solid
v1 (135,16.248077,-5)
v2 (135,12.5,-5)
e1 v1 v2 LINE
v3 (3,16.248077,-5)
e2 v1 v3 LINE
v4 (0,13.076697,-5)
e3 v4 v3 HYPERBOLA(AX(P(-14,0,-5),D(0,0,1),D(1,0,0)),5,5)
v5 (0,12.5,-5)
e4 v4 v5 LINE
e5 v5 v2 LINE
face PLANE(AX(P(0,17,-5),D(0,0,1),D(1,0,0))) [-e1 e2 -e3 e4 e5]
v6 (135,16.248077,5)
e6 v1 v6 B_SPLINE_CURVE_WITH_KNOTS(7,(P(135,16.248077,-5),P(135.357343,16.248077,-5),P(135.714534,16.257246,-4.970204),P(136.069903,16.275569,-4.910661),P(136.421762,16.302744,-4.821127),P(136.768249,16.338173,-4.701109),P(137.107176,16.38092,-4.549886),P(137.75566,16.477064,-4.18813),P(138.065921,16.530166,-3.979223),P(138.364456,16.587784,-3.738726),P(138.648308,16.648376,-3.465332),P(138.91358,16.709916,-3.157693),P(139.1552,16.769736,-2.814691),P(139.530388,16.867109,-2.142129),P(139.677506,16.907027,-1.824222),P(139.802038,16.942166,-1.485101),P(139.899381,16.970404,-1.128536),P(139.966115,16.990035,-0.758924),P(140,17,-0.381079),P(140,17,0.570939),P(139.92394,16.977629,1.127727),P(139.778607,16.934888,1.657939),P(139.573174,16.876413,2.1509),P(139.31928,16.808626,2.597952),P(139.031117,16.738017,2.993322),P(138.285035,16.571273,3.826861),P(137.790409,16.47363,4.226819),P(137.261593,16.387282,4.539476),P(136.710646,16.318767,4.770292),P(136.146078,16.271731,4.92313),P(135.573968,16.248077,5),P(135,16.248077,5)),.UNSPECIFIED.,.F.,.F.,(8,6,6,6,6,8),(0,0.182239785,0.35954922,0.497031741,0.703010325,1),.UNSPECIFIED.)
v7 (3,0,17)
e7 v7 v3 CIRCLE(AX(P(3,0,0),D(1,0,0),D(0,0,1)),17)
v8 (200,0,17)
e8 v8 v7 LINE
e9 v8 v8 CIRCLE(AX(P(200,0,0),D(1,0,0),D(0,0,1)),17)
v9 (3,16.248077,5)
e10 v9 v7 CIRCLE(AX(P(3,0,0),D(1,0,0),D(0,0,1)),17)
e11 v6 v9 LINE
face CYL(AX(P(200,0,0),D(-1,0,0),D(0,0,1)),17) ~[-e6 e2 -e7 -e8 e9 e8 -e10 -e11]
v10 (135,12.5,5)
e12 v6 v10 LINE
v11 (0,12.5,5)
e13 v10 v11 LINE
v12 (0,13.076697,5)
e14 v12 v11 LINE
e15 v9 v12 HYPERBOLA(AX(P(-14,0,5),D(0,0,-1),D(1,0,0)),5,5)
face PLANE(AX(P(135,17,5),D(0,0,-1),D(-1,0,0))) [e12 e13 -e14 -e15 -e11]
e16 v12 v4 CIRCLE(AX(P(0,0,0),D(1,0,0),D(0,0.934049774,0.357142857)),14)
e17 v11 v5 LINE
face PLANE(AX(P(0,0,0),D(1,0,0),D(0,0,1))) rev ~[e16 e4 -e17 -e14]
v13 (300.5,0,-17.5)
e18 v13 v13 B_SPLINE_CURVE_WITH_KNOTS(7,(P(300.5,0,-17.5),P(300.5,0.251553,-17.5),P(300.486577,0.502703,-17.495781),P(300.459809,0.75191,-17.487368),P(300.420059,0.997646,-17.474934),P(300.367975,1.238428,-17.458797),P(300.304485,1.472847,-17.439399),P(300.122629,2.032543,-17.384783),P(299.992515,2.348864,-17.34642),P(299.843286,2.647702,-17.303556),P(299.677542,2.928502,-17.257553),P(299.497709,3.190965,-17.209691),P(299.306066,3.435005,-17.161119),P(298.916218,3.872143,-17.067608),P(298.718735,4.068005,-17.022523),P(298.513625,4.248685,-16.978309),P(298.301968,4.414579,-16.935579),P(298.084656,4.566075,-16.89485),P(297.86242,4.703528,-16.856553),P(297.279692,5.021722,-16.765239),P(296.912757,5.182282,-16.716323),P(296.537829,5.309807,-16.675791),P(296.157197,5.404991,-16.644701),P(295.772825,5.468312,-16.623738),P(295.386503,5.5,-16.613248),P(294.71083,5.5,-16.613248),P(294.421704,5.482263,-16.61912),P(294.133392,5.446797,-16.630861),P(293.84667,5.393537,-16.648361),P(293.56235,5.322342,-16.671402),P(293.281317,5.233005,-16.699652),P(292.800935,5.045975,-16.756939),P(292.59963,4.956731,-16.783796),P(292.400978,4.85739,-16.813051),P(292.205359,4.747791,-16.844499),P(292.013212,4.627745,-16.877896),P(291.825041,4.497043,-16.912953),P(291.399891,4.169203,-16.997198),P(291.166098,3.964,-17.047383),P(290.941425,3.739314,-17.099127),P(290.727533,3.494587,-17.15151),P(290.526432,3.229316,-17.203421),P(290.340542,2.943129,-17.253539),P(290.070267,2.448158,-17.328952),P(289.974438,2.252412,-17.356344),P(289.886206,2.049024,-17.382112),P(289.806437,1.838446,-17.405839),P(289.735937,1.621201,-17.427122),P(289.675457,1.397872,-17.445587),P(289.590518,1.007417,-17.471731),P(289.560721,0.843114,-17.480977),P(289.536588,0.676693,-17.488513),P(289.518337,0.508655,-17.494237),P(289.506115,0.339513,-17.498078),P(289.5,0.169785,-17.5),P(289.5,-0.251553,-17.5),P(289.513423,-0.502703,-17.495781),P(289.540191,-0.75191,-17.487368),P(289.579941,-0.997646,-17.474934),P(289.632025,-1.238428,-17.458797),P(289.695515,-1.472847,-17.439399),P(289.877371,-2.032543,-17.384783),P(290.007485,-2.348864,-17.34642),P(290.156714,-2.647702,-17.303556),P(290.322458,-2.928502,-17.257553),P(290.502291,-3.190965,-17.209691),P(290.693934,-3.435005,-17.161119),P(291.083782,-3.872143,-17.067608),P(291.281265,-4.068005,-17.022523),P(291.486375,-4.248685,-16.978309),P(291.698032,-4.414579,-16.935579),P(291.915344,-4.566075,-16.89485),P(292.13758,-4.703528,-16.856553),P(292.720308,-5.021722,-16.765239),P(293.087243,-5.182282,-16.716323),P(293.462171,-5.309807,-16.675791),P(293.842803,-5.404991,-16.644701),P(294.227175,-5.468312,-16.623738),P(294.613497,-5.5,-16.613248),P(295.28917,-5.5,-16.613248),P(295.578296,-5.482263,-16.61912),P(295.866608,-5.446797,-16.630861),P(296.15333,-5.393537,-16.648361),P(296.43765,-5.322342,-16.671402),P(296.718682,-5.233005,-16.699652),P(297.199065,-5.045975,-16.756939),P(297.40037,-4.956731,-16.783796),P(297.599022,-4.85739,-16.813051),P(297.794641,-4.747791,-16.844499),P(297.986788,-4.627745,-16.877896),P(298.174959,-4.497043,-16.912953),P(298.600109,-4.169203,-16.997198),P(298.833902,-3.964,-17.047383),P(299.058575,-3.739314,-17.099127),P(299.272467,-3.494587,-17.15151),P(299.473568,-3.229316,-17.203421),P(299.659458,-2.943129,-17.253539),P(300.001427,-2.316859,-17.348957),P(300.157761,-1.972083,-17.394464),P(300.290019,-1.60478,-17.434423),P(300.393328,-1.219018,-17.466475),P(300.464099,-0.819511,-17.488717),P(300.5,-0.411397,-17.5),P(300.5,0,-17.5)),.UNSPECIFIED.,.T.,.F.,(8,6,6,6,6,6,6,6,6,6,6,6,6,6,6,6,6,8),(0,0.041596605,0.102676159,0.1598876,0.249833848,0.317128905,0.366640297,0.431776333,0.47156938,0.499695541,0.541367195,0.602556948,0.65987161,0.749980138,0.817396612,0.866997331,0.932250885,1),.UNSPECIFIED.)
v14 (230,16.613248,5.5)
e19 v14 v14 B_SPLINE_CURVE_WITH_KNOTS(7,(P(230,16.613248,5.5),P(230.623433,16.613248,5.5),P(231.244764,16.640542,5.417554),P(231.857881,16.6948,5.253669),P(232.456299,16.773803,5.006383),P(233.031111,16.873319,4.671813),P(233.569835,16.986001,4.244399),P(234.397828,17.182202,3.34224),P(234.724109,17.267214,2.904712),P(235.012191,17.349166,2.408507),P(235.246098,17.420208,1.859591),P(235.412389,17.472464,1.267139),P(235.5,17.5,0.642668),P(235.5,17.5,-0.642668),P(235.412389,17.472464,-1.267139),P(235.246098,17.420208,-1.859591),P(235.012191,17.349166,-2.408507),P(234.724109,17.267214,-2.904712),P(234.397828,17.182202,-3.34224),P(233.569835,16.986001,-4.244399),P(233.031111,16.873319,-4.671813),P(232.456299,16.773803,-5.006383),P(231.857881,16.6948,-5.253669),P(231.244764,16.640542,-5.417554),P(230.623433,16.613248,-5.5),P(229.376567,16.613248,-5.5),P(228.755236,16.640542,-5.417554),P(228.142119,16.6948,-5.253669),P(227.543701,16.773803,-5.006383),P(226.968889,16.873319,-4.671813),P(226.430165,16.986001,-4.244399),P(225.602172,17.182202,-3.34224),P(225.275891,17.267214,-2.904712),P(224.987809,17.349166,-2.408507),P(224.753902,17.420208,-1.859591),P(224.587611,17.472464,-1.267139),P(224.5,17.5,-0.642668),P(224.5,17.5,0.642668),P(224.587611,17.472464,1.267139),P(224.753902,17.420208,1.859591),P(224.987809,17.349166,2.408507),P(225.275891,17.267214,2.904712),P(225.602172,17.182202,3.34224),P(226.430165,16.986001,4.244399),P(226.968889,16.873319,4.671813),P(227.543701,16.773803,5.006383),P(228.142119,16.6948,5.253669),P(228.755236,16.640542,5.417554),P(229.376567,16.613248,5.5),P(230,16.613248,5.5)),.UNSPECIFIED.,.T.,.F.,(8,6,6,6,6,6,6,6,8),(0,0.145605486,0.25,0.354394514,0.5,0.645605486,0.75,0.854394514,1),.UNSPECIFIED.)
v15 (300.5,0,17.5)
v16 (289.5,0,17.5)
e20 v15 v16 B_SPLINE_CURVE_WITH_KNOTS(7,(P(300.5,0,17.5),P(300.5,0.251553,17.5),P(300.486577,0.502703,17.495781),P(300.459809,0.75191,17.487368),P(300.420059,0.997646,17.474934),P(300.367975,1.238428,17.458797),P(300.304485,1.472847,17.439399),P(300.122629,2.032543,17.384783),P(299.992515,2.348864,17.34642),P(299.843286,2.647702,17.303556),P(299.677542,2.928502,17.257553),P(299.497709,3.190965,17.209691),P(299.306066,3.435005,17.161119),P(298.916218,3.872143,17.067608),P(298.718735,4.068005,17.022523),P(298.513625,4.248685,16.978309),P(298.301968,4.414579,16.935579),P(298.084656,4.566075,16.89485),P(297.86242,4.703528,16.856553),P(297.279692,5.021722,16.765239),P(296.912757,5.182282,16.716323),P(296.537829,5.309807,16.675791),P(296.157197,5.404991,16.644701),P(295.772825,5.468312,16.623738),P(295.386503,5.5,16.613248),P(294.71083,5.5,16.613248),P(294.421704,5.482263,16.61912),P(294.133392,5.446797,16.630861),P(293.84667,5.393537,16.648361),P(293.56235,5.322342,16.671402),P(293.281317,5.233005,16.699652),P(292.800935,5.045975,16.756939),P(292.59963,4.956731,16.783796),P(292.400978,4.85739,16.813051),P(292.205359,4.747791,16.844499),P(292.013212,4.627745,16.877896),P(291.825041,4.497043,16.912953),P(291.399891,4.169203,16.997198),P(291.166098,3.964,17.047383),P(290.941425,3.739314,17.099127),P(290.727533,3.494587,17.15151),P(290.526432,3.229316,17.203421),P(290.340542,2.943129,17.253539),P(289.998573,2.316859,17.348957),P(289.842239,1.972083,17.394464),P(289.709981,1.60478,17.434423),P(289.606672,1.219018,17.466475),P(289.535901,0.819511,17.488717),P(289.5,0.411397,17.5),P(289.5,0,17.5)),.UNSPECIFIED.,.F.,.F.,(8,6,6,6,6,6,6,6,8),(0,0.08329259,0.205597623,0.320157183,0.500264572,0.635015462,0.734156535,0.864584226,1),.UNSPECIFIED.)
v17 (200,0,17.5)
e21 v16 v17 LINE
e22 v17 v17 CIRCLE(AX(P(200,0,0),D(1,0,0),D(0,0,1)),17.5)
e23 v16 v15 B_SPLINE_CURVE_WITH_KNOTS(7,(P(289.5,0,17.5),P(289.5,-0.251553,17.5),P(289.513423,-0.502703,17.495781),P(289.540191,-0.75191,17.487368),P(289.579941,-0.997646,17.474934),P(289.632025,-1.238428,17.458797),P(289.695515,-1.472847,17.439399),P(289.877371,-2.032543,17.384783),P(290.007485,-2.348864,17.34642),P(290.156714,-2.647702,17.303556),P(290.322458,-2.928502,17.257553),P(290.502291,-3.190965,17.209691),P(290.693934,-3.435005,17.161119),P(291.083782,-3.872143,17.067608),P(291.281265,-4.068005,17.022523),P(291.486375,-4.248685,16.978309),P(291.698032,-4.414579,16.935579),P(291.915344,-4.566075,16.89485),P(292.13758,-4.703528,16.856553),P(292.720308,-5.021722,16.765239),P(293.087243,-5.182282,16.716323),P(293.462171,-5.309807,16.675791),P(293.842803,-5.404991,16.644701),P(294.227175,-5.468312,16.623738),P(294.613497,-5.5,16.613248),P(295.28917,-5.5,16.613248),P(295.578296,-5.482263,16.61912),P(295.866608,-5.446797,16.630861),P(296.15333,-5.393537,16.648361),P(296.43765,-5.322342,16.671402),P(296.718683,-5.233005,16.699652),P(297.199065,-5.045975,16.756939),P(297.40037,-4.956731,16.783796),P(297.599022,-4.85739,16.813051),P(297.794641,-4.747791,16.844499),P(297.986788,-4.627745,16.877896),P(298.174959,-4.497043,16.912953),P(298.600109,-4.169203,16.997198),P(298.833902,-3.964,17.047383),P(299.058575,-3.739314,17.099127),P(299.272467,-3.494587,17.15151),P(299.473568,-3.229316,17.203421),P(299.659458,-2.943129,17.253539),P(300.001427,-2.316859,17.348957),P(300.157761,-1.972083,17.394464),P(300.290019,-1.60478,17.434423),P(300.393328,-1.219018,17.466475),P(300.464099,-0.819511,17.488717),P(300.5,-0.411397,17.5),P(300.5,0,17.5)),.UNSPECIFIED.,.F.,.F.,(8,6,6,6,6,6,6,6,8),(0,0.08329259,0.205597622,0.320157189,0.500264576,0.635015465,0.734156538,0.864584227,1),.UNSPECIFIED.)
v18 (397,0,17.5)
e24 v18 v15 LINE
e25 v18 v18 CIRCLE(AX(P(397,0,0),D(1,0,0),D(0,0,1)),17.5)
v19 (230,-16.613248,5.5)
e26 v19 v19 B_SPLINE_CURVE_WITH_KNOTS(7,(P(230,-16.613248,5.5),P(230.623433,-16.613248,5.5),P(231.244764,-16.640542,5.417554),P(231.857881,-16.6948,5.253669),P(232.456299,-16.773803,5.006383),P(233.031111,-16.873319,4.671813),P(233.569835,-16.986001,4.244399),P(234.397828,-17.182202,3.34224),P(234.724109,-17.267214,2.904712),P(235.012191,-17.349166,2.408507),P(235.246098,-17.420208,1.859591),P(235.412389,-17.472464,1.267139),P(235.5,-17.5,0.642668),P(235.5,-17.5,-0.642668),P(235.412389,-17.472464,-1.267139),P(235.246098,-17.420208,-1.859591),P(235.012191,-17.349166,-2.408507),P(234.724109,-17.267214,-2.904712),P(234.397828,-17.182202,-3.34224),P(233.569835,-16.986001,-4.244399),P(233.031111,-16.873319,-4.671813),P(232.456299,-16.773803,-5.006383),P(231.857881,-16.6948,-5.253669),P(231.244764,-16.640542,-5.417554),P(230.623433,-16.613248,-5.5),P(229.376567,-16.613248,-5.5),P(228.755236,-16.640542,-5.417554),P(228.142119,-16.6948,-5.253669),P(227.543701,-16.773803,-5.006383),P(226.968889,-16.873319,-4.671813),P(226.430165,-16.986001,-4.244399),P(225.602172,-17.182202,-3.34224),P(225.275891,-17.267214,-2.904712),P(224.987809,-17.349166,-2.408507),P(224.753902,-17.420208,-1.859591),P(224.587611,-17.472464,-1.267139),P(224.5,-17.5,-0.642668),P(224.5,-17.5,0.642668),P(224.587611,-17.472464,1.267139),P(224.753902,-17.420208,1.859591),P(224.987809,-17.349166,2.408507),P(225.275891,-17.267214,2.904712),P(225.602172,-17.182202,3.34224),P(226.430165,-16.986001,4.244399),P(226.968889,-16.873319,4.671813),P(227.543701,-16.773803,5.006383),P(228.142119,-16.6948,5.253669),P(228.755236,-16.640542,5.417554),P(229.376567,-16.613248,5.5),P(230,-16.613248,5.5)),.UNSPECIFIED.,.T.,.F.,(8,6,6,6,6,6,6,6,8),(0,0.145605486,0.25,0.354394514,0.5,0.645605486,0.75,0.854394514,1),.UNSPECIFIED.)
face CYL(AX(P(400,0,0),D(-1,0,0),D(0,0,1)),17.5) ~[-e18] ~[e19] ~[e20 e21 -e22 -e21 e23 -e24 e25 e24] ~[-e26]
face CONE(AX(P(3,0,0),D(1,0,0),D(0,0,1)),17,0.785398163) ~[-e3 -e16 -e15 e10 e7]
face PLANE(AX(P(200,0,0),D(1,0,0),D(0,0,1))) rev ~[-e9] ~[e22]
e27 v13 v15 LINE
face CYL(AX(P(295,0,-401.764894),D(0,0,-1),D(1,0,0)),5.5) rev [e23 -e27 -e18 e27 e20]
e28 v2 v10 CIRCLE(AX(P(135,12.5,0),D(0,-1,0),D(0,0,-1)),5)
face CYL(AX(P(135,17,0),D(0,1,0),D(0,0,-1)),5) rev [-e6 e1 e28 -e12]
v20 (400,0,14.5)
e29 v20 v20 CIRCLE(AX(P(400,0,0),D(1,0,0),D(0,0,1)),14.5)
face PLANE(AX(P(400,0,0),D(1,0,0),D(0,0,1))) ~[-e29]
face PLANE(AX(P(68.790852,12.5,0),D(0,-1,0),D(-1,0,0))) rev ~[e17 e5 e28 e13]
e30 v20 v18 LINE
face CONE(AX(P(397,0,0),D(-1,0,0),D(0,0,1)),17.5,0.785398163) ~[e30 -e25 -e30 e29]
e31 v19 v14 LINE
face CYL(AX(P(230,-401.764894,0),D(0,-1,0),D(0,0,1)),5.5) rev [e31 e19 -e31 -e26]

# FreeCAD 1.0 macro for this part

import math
import FreeCAD as App
import Part
import Sketcher


def edges_at(feature, points):
    """Names of the edges that pass closest to the given points."""
    edges = feature.Shape.Edges
    near = lambda p: min(range(len(edges)), key=lambda i: edges[i].distToShape(Part.Vertex(*p))[0])
    return sorted({f"Edge{near(p) + 1}" for p in points})


def add_polygon(sketch, points):
    """Adds a closed chain of lines whose ends are joined by coincident constraints."""
    first, n = sketch.GeometryCount, len(points)
    for a, b in zip(points, points[1:] + points[:1]):
        sketch.addGeometry(Part.LineSegment(App.Vector(*a, 0), App.Vector(*b, 0)), False)
    for i in range(n):
        sketch.addConstraint(Sketcher.Constraint("Coincident", first + i, 2, first + (i + 1) % n, 1))

doc = App.newDocument("Part")
body = doc.addObject("PartDesign::Body", "Body")

# Sketch on XY plane
sketch1 = doc.addObject("Sketcher::SketchObject", "Sketch")
body.addObject(sketch1)
sketch1.AttachmentSupport = (doc.XY_Plane, [""])
sketch1.MapMode = "FlatFace"
add_polygon(sketch1, [(0, 0), (400, 0), (400, 17.5), (200, 17.5), (200, 17), (0, 17)])  # lines 0-5
sketch1.addConstraint([
    Sketcher.Constraint("Horizontal", 0),
    Sketcher.Constraint("Vertical", 1),
    Sketcher.Constraint("Horizontal", 2),
    Sketcher.Constraint("Vertical", 3),
    Sketcher.Constraint("Horizontal", 4),
    Sketcher.Constraint("Vertical", 5),
    Sketcher.Constraint("Coincident", 5, 2, -1, 1),
    Sketcher.Constraint("Equal", 2, 4),
    Sketcher.Constraint("DistanceX", 0, 1, 0, 2, 400.0),
    Sketcher.Constraint("DistanceY", 5, 2, 5, 1, 17.0),
    Sketcher.Constraint("DistanceY", 1, 1, 1, 2, 17.5),
])
revolution = doc.addObject("PartDesign::Revolution", "Revolution")
body.addObject(revolution)
revolution.Profile = sketch1
revolution.ReferenceAxis = (sketch1, ["H_Axis"])
revolution.Angle = 360
doc.recompute()

chamfer = doc.addObject("PartDesign::Chamfer", "Chamfer")
body.addObject(chamfer)
chamfer.Base = (revolution, edges_at(revolution, [(0, 0, -17), (400, 0, -17.5)]))
chamfer.Size = 3

# Sketch on XZ plane
sketch2 = doc.addObject("Sketcher::SketchObject", "Sketch001")
body.addObject(sketch2)
sketch2.AttachmentSupport = (doc.XZ_Plane, [""])
sketch2.MapMode = "FlatFace"
sketch2.AttachmentOffset = App.Placement(App.Vector(0, 0, -17), App.Rotation())
sketch2.addGeometry([
    Part.LineSegment(App.Vector(135, -5, 0), App.Vector(0, -5, 0)),
    Part.LineSegment(App.Vector(0, -5, 0), App.Vector(0, 5, 0)),
    Part.LineSegment(App.Vector(0, 5, 0), App.Vector(135, 5, 0)),
    Part.ArcOfCircle(Part.Circle(App.Vector(135, 0, 0), App.Vector(0, 0, 1), 5), math.radians(-90), math.radians(90)),
], False)
sketch2.addConstraint([
    Sketcher.Constraint("Coincident", 0, 2, 1, 1),
    Sketcher.Constraint("Coincident", 1, 2, 2, 1),
    Sketcher.Constraint("Tangent", 2, 2, 3, 2),
    Sketcher.Constraint("Tangent", 3, 1, 0, 1),
    Sketcher.Constraint("Horizontal", 0),
    Sketcher.Constraint("Vertical", 1),
    Sketcher.Constraint("Horizontal", 2),
    Sketcher.Constraint("Symmetric", 0, 2, 1, 2, -1, 1),
    Sketcher.Constraint("Radius", 3, 5.0),
    Sketcher.Constraint("DistanceX", 0, 2, 0, 1, 135.0),
])
pocket1 = doc.addObject("PartDesign::Pocket", "Pocket")
body.addObject(pocket1)
pocket1.Profile = sketch2
pocket1.Length = 4.5
pocket1.Reversed = True

# Sketch on XZ plane
sketch3 = doc.addObject("Sketcher::SketchObject", "Sketch002")
body.addObject(sketch3)
sketch3.AttachmentSupport = (doc.XZ_Plane, [""])
sketch3.MapMode = "FlatFace"
sketch3.addGeometry(Part.Circle(App.Vector(230, 0, 0), App.Vector(0, 0, 1), 5.5), False)
sketch3.addConstraint([
    Sketcher.Constraint("PointOnObject", 0, 3, -1),
    Sketcher.Constraint("Diameter", 0, 11.0),
    Sketcher.Constraint("DistanceX", -1, 1, 0, 3, 230.0),
])
pocket2 = doc.addObject("PartDesign::Pocket", "Pocket001")
body.addObject(pocket2)
pocket2.Profile = sketch3
pocket2.Type = "ThroughAll"
pocket2.Midplane = True

# Sketch on XY plane
sketch4 = doc.addObject("Sketcher::SketchObject", "Sketch003")
body.addObject(sketch4)
sketch4.AttachmentSupport = (doc.XY_Plane, [""])
sketch4.MapMode = "FlatFace"
sketch4.addGeometry(Part.Circle(App.Vector(295, 0, 0), App.Vector(0, 0, 1), 5.5), False)
sketch4.addConstraint([
    Sketcher.Constraint("PointOnObject", 0, 3, -1),
    Sketcher.Constraint("Diameter", 0, 11.0),
    Sketcher.Constraint("DistanceX", -1, 1, 0, 3, 295.0),
])
pocket3 = doc.addObject("PartDesign::Pocket", "Pocket002")
body.addObject(pocket3)
pocket3.Profile = sketch4
pocket3.Type = "ThroughAll"
pocket3.Midplane = True

doc.recompute()
